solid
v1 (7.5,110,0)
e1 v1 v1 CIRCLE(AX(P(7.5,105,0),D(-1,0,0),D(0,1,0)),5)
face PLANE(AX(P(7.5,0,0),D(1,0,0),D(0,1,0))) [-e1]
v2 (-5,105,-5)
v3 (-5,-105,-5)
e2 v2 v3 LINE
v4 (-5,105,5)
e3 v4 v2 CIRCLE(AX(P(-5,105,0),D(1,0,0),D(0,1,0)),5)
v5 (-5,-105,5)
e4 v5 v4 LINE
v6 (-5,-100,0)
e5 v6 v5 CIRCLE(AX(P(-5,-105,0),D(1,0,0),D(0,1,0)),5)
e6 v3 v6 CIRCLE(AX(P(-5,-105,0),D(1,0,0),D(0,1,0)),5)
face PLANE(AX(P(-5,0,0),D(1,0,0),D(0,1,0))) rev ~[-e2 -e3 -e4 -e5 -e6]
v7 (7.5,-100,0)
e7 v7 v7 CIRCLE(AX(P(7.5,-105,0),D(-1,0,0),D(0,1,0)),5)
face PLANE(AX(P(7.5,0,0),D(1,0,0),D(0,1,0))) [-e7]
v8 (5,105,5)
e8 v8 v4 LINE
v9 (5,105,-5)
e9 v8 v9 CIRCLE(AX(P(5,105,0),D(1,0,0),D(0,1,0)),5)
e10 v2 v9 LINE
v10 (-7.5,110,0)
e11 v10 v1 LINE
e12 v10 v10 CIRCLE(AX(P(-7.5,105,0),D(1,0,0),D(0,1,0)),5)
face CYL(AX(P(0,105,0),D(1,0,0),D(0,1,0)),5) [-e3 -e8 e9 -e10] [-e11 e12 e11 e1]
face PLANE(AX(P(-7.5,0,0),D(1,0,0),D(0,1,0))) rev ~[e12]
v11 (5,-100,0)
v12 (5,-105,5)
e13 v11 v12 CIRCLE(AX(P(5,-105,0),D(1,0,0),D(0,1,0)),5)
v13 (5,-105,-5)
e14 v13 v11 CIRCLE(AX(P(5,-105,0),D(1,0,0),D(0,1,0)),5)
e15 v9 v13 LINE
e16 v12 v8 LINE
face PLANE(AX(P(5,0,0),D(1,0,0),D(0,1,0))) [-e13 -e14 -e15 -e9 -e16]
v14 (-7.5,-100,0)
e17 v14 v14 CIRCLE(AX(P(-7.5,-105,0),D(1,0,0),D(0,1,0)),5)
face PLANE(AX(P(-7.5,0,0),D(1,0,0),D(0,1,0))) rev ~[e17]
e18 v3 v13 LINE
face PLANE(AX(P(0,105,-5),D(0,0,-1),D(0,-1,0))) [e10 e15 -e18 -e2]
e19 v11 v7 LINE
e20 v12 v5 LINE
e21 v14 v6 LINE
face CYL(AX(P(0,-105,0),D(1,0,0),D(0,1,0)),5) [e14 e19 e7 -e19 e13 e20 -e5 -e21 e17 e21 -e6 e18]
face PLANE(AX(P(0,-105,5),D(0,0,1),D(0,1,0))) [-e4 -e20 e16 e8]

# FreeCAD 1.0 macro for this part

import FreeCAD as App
import Part
import Sketcher
from FreeCAD import Vector
Q = App.Units.Quantity


def add_polygon(sketch, points):
    """Adds a closed chain of lines whose ends are joined by coincident constraints."""
    first, n = sketch.GeometryCount, len(points)
    for a, b in zip(points, points[1:] + points[:1]):
        sketch.addGeometry(Part.LineSegment(App.Vector(*a, 0), App.Vector(*b, 0)), False)
    for i in range(n):
        sketch.addConstraint(Sketcher.Constraint("Coincident", first + i, 2, first + (i + 1) % n, 1))

doc = App.newDocument("Part")
body = doc.addObject("PartDesign::Body", "Body")

# Sketch on YZ plane
sketch1 = body.newObject("Sketcher::SketchObject", "Sketch")
sketch1.AttachmentSupport = (doc.getObject("YZ_Plane"), [""])
sketch1.MapMode = "FlatFace"
add_polygon(sketch1, [(-105, 5), (-105, -5), (105, -5), (105, 5)])  # lines 0-3
sketch1.addConstraint([
    Sketcher.Constraint("Vertical", 0),
    Sketcher.Constraint("Horizontal", 1),
    Sketcher.Constraint("Vertical", 2),
    Sketcher.Constraint("Horizontal", 3),
    Sketcher.Constraint("Symmetric", 0, 2, 2, 2, -1, 1),
    Sketcher.Constraint("DistanceX", 1, 1, 1, 2, Q("210 mm")),
    Sketcher.Constraint("DistanceY", 0, 2, 0, 1, Q("10 mm")),
])
pad1 = body.newObject("PartDesign::Pad", "Pad")
pad1.Profile = sketch1
pad1.Type = "TwoLengths"
pad1.Length = 5
pad1.Length2 = 5

# Sketch on YZ plane
sketch2 = body.newObject("Sketcher::SketchObject", "Sketch001")
sketch2.AttachmentSupport = (doc.getObject("YZ_Plane"), [""])
sketch2.MapMode = "FlatFace"
sketch2.addGeometry([
    Part.Circle(Vector(-105, 0, 0), Vector(0, 0, 1), 5),
    Part.Circle(Vector(105, 0, 0), Vector(0, 0, 1), 5),
], False)
sketch2.addConstraint([
    Sketcher.Constraint("Equal", 0, 1),
    Sketcher.Constraint("Symmetric", 0, 3, 1, 3, -1, 1),
    Sketcher.Constraint("PointOnObject", 0, 3, -1),
    Sketcher.Constraint("Diameter", 0, Q("10 mm")),
    Sketcher.Constraint("DistanceX", 0, 3, -1, 1, Q("105 mm")),
])
pad2 = body.newObject("PartDesign::Pad", "Pad001")
pad2.Profile = sketch2
pad2.Type = "TwoLengths"
pad2.Length = 7.5
pad2.Length2 = 7.5

doc.recompute()
